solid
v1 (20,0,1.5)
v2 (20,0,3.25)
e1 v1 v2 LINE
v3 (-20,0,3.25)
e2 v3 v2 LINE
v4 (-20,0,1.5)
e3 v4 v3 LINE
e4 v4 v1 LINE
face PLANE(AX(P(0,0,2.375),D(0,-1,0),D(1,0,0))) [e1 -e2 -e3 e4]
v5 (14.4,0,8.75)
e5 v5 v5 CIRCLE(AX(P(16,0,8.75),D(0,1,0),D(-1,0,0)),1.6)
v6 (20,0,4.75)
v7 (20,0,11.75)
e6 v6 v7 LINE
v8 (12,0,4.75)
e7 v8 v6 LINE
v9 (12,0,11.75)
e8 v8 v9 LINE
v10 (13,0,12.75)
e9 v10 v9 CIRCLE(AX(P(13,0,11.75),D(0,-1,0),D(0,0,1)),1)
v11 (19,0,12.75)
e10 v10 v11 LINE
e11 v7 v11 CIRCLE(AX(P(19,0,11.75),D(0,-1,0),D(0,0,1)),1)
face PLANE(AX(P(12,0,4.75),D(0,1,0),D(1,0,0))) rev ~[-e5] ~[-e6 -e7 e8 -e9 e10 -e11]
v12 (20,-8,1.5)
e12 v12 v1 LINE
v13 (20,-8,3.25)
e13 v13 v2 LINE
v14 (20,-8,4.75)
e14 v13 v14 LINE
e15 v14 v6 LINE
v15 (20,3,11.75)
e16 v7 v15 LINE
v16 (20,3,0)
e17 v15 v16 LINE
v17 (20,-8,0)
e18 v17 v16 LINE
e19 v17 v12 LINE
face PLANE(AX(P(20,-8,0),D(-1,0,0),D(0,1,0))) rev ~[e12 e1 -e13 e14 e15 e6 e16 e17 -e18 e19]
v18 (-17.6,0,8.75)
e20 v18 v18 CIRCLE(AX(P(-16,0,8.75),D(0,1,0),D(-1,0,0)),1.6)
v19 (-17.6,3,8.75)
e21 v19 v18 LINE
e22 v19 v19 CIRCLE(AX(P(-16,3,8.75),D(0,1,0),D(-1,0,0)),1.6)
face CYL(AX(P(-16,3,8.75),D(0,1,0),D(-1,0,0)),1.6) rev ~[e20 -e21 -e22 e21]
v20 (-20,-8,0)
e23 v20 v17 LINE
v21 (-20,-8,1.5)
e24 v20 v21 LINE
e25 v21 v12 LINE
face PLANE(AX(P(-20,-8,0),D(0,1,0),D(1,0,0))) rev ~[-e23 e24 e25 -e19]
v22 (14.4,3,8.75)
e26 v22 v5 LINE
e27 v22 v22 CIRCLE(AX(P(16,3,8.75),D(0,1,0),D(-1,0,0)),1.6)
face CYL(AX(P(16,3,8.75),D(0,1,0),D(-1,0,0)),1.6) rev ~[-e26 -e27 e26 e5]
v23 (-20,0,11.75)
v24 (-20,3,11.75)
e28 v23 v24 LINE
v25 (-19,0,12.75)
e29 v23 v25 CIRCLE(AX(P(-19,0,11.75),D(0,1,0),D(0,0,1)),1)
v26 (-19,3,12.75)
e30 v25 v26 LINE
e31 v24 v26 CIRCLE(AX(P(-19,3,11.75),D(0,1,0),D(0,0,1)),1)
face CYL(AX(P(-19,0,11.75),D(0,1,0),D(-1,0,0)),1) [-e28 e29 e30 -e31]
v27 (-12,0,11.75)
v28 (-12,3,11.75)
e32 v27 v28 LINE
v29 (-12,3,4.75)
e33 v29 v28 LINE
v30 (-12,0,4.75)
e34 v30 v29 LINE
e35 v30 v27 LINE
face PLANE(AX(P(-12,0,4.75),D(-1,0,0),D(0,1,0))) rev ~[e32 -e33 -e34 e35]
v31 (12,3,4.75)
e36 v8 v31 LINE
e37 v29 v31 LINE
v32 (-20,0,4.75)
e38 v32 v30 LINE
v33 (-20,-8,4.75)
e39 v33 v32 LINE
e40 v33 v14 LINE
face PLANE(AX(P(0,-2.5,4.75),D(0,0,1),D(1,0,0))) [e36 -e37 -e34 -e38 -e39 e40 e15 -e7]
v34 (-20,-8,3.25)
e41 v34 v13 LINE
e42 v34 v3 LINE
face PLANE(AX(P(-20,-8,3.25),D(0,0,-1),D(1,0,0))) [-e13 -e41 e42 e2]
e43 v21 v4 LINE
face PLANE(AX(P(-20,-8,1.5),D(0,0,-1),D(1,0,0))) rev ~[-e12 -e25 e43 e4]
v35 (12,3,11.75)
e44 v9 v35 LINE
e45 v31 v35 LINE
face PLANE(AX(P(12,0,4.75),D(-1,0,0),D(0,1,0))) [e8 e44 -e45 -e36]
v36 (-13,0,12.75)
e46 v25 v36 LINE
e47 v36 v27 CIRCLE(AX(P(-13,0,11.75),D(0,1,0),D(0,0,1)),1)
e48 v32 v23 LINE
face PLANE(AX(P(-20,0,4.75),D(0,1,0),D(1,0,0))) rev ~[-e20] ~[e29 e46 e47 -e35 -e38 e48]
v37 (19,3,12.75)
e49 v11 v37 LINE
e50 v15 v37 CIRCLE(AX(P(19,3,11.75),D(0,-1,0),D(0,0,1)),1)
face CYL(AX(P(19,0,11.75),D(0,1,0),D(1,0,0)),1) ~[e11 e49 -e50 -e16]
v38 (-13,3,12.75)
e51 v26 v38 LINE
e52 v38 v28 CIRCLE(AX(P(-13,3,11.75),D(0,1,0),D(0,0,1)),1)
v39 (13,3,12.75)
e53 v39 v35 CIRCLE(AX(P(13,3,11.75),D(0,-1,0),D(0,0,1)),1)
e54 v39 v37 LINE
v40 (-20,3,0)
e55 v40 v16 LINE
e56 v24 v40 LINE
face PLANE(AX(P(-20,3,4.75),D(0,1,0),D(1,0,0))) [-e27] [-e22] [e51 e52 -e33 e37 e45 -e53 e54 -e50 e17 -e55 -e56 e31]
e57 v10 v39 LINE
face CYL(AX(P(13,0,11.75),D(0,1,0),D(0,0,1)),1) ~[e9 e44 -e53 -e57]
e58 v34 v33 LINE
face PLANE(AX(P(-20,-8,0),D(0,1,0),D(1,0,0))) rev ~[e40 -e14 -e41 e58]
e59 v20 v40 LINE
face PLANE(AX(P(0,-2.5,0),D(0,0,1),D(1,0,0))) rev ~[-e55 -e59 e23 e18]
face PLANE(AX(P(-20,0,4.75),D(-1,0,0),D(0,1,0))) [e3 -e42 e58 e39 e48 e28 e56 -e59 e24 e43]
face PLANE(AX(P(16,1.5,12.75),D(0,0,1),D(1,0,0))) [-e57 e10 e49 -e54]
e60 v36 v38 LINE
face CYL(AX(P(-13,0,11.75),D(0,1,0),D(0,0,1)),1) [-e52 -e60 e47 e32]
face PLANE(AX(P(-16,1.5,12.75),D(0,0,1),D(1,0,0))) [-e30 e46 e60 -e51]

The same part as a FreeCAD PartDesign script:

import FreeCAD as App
import Part
import Sketcher
from FreeCAD import Vector
Q = App.Units.Quantity


def edges_at(feature, points):
    """Names of the edges that pass closest to the given points."""
    edges = feature.Shape.Edges
    near = lambda p: min(range(len(edges)), key=lambda i: edges[i].distToShape(Part.Vertex(*p))[0])
    return sorted({f"Edge{near(p) + 1}" for p in points})


def add_polygon(sketch, points):
    """Adds a closed chain of lines whose ends are joined by coincident constraints."""
    first, n = sketch.GeometryCount, len(points)
    for a, b in zip(points, points[1:] + points[:1]):
        sketch.addGeometry(Part.LineSegment(App.Vector(*a, 0), App.Vector(*b, 0)), False)
    for i in range(n):
        sketch.addConstraint(Sketcher.Constraint("Coincident", first + i, 2, first + (i + 1) % n, 1))

doc = App.newDocument("Part")
body = doc.addObject("PartDesign::Body", "Body")

sketch1 = doc.addObject("Sketcher::SketchObject", "Sketch")
body.addObject(sketch1)
sketch1.AttachmentSupport = (doc.XY_Plane, [""])
sketch1.MapMode = "FlatFace"
add_polygon(sketch1, [(-20, 3), (-20, -8), (20, -8), (20, 3)])
sketch1.addConstraint(Sketcher.Constraint("Vertical", 0))
sketch1.addConstraint(Sketcher.Constraint("Horizontal", 1))
sketch1.addConstraint(Sketcher.Constraint("Vertical", 2))
sketch1.addConstraint(Sketcher.Constraint("Horizontal", 3))
sketch1.addConstraint(Sketcher.Constraint("DistanceX", 1, 1, 1, 2, Q("40 mm")))
sketch1.addConstraint(Sketcher.Constraint("DistanceY", 0, 2, 0, 1, Q("11 mm")))
sketch1.addConstraint(Sketcher.Constraint("DistanceX", 0, 2, -1, 1, Q("20 mm")))
sketch1.addConstraint(Sketcher.Constraint("DistanceY", 0, 2, -1, 1, Q("8 mm")))
pad1 = doc.addObject("PartDesign::Pad", "Pad")
body.addObject(pad1)
pad1.Profile = sketch1
pad1.Length = 4.75

sketch2 = doc.addObject("Sketcher::SketchObject", "Sketch001")
body.addObject(sketch2)
sketch2.AttachmentSupport = (doc.XZ_Plane, [""])
sketch2.MapMode = "FlatFace"
sketch2.AttachmentOffset = App.Placement(Vector(0, 0, 8), App.Rotation())
add_polygon(sketch2, [(-20, 3.2), (-20, 1.5), (20, 1.5), (20, 3.2)])
sketch2.addConstraint(Sketcher.Constraint("Vertical", 0))
sketch2.addConstraint(Sketcher.Constraint("Horizontal", 1))
sketch2.addConstraint(Sketcher.Constraint("Vertical", 2))
sketch2.addConstraint(Sketcher.Constraint("Horizontal", 3))
sketch2.addConstraint(Sketcher.Constraint("DistanceX", 1, 1, 1, 2, Q("40 mm")))
sketch2.addConstraint(Sketcher.Constraint("DistanceX", 0, 2, -1, 1, Q("20 mm")))
sketch2.addConstraint(Sketcher.Constraint("DistanceY", 0, 2, 0, 1, Q("1.75 mm")))
sketch2.addConstraint(Sketcher.Constraint("DistanceY", -1, 1, 0, 2, Q("1.5 mm")))
pocket1 = doc.addObject("PartDesign::Pocket", "Pocket")
body.addObject(pocket1)
pocket1.Profile = sketch2
pocket1.Length = 8

sketch3 = doc.addObject("Sketcher::SketchObject", "Sketch002")
body.addObject(sketch3)
sketch3.AttachmentSupport = (doc.XY_Plane, [""])
sketch3.MapMode = "FlatFace"
sketch3.AttachmentOffset = App.Placement(Vector(0, 0, 4.75), App.Rotation())
add_polygon(sketch3, [(-20, 3), (-20, 0), (-12, 0), (-12, 3)])
add_polygon(sketch3, [(12, 3), (12, 0), (20, 0), (20, 3)])
sketch3.addConstraint(Sketcher.Constraint("Vertical", 0))
sketch3.addConstraint(Sketcher.Constraint("Horizontal", 1))
sketch3.addConstraint(Sketcher.Constraint("Vertical", 2))
sketch3.addConstraint(Sketcher.Constraint("Horizontal", 3))
sketch3.addConstraint(Sketcher.Constraint("Vertical", 4))
sketch3.addConstraint(Sketcher.Constraint("Horizontal", 5))
sketch3.addConstraint(Sketcher.Constraint("Vertical", 6))
sketch3.addConstraint(Sketcher.Constraint("Horizontal", 7))
sketch3.addConstraint(Sketcher.Constraint("Symmetric", 1, 2, 4, 2, -1, 1))
sketch3.addConstraint(Sketcher.Constraint("Symmetric", 0, 2, 5, 2, -2))
sketch3.addConstraint(Sketcher.Constraint("Horizontal", 3, 2, 6, 2))
sketch3.addConstraint(Sketcher.Constraint("DistanceX", 1, 1, 1, 2, Q("8 mm")))
sketch3.addConstraint(Sketcher.Constraint("DistanceY", 0, 2, 0, 1, Q("3 mm")))
sketch3.addConstraint(Sketcher.Constraint("DistanceX", 0, 2, -1, 1, Q("20 mm")))
pad2 = doc.addObject("PartDesign::Pad", "Pad001")
body.addObject(pad2)
pad2.Profile = sketch3
pad2.Length = 8

sketch4 = doc.addObject("Sketcher::SketchObject", "Sketch003")
body.addObject(sketch4)
sketch4.AttachmentSupport = (doc.XZ_Plane, [""])
sketch4.MapMode = "FlatFace"
sketch4.AttachmentOffset = App.Placement(Vector(0, 0, -3), App.Rotation())
sketch4.addGeometry(Part.Circle(Vector(16, 8.8, 0), Vector(0, 0, 1), 1.6), False)
sketch4.addGeometry(Part.Circle(Vector(-16, 8.8, 0), Vector(0, 0, 1), 1.6), False)
sketch4.addConstraint(Sketcher.Constraint("Equal", 0, 1))
sketch4.addConstraint(Sketcher.Constraint("Symmetric", 0, 3, 1, 3, -2))
sketch4.addConstraint(Sketcher.Constraint("Diameter", 0, Q("3.2 mm")))
sketch4.addConstraint(Sketcher.Constraint("DistanceX", -1, 1, 0, 3, Q("16 mm")))
sketch4.addConstraint(Sketcher.Constraint("DistanceY", -1, 1, 0, 3, Q("8.75 mm")))
pocket2 = doc.addObject("PartDesign::Pocket", "Pocket001")
body.addObject(pocket2)
pocket2.Profile = sketch4
pocket2.Type = "ThroughAll"
pocket2.Reversed = True
doc.recompute()

fillet = doc.addObject("PartDesign::Fillet", "Fillet")
body.addObject(fillet)
fillet.Base = (pocket2, edges_at(pocket2, [
    (20, 1.5, 12.75),
    (12, 1.5, 12.75),
    (-12, 1.5, 12.75),
    (-20, 1.5, 12.75),
]))
fillet.Radius = 1

doc.recompute()
